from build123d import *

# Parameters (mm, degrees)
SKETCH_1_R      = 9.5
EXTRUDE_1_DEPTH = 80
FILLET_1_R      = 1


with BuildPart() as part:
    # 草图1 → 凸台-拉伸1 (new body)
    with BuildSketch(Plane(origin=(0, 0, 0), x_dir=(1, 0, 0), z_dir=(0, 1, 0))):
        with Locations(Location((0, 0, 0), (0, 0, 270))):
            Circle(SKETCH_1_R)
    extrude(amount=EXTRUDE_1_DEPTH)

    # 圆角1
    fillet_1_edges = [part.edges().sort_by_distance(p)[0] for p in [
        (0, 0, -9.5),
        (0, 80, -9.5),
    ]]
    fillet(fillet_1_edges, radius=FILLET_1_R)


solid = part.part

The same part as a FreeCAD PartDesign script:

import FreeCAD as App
import Part
import Sketcher


def edges_at(feature, points):
    """Names of the edges that pass closest to the given points."""
    edges = feature.Shape.Edges
    near = lambda p: min(range(len(edges)), key=lambda i: edges[i].distToShape(Part.Vertex(*p))[0])
    return sorted({f"Edge{near(p) + 1}" for p in points})

doc = App.newDocument("Part")
params = doc.addObject("Spreadsheet::Sheet", "Params")
for row, (alias, value) in enumerate([
    ("sketch1_diameter", "19 mm"),
    ("pad1_length", "80 mm"),
    ("fillet_radius", "1 mm"),
], start=1):
    params.set(f"A{row}", alias)
    params.set(f"B{row}", "=" + value)
    params.setAlias(f"B{row}", alias)

body = doc.addObject("PartDesign::Body", "Body")

sketch1 = body.newObject("Sketcher::SketchObject", "Sketch")
sketch1.AttachmentSupport = (doc.getObject("XZ_Plane"), [""])
sketch1.MapMode = "FlatFace"
sketch1.addGeometry(Part.Circle(App.Vector(0, 0, 0), App.Vector(0, 0, 1), 9.5), False)
sketch1.addConstraint([
    Sketcher.Constraint("Coincident", 0, 3, -1, 1),
    Sketcher.Constraint("Diameter", 0, 19.0),
])
sketch1.setExpression("Constraints[1]", "Params.sketch1_diameter")
pad1 = body.newObject("PartDesign::Pad", "Pad")
pad1.Profile = sketch1
pad1.setExpression("Length", "Params.pad1_length")
pad1.Reversed = True
doc.recompute()

fillet = body.newObject("PartDesign::Fillet", "Fillet")
fillet.Base = (pad1, edges_at(pad1, [(0, 0, -9.5), (0, 80, -9.5)]))
fillet.setExpression("Radius", "Params.fillet_radius")

doc.recompute()
